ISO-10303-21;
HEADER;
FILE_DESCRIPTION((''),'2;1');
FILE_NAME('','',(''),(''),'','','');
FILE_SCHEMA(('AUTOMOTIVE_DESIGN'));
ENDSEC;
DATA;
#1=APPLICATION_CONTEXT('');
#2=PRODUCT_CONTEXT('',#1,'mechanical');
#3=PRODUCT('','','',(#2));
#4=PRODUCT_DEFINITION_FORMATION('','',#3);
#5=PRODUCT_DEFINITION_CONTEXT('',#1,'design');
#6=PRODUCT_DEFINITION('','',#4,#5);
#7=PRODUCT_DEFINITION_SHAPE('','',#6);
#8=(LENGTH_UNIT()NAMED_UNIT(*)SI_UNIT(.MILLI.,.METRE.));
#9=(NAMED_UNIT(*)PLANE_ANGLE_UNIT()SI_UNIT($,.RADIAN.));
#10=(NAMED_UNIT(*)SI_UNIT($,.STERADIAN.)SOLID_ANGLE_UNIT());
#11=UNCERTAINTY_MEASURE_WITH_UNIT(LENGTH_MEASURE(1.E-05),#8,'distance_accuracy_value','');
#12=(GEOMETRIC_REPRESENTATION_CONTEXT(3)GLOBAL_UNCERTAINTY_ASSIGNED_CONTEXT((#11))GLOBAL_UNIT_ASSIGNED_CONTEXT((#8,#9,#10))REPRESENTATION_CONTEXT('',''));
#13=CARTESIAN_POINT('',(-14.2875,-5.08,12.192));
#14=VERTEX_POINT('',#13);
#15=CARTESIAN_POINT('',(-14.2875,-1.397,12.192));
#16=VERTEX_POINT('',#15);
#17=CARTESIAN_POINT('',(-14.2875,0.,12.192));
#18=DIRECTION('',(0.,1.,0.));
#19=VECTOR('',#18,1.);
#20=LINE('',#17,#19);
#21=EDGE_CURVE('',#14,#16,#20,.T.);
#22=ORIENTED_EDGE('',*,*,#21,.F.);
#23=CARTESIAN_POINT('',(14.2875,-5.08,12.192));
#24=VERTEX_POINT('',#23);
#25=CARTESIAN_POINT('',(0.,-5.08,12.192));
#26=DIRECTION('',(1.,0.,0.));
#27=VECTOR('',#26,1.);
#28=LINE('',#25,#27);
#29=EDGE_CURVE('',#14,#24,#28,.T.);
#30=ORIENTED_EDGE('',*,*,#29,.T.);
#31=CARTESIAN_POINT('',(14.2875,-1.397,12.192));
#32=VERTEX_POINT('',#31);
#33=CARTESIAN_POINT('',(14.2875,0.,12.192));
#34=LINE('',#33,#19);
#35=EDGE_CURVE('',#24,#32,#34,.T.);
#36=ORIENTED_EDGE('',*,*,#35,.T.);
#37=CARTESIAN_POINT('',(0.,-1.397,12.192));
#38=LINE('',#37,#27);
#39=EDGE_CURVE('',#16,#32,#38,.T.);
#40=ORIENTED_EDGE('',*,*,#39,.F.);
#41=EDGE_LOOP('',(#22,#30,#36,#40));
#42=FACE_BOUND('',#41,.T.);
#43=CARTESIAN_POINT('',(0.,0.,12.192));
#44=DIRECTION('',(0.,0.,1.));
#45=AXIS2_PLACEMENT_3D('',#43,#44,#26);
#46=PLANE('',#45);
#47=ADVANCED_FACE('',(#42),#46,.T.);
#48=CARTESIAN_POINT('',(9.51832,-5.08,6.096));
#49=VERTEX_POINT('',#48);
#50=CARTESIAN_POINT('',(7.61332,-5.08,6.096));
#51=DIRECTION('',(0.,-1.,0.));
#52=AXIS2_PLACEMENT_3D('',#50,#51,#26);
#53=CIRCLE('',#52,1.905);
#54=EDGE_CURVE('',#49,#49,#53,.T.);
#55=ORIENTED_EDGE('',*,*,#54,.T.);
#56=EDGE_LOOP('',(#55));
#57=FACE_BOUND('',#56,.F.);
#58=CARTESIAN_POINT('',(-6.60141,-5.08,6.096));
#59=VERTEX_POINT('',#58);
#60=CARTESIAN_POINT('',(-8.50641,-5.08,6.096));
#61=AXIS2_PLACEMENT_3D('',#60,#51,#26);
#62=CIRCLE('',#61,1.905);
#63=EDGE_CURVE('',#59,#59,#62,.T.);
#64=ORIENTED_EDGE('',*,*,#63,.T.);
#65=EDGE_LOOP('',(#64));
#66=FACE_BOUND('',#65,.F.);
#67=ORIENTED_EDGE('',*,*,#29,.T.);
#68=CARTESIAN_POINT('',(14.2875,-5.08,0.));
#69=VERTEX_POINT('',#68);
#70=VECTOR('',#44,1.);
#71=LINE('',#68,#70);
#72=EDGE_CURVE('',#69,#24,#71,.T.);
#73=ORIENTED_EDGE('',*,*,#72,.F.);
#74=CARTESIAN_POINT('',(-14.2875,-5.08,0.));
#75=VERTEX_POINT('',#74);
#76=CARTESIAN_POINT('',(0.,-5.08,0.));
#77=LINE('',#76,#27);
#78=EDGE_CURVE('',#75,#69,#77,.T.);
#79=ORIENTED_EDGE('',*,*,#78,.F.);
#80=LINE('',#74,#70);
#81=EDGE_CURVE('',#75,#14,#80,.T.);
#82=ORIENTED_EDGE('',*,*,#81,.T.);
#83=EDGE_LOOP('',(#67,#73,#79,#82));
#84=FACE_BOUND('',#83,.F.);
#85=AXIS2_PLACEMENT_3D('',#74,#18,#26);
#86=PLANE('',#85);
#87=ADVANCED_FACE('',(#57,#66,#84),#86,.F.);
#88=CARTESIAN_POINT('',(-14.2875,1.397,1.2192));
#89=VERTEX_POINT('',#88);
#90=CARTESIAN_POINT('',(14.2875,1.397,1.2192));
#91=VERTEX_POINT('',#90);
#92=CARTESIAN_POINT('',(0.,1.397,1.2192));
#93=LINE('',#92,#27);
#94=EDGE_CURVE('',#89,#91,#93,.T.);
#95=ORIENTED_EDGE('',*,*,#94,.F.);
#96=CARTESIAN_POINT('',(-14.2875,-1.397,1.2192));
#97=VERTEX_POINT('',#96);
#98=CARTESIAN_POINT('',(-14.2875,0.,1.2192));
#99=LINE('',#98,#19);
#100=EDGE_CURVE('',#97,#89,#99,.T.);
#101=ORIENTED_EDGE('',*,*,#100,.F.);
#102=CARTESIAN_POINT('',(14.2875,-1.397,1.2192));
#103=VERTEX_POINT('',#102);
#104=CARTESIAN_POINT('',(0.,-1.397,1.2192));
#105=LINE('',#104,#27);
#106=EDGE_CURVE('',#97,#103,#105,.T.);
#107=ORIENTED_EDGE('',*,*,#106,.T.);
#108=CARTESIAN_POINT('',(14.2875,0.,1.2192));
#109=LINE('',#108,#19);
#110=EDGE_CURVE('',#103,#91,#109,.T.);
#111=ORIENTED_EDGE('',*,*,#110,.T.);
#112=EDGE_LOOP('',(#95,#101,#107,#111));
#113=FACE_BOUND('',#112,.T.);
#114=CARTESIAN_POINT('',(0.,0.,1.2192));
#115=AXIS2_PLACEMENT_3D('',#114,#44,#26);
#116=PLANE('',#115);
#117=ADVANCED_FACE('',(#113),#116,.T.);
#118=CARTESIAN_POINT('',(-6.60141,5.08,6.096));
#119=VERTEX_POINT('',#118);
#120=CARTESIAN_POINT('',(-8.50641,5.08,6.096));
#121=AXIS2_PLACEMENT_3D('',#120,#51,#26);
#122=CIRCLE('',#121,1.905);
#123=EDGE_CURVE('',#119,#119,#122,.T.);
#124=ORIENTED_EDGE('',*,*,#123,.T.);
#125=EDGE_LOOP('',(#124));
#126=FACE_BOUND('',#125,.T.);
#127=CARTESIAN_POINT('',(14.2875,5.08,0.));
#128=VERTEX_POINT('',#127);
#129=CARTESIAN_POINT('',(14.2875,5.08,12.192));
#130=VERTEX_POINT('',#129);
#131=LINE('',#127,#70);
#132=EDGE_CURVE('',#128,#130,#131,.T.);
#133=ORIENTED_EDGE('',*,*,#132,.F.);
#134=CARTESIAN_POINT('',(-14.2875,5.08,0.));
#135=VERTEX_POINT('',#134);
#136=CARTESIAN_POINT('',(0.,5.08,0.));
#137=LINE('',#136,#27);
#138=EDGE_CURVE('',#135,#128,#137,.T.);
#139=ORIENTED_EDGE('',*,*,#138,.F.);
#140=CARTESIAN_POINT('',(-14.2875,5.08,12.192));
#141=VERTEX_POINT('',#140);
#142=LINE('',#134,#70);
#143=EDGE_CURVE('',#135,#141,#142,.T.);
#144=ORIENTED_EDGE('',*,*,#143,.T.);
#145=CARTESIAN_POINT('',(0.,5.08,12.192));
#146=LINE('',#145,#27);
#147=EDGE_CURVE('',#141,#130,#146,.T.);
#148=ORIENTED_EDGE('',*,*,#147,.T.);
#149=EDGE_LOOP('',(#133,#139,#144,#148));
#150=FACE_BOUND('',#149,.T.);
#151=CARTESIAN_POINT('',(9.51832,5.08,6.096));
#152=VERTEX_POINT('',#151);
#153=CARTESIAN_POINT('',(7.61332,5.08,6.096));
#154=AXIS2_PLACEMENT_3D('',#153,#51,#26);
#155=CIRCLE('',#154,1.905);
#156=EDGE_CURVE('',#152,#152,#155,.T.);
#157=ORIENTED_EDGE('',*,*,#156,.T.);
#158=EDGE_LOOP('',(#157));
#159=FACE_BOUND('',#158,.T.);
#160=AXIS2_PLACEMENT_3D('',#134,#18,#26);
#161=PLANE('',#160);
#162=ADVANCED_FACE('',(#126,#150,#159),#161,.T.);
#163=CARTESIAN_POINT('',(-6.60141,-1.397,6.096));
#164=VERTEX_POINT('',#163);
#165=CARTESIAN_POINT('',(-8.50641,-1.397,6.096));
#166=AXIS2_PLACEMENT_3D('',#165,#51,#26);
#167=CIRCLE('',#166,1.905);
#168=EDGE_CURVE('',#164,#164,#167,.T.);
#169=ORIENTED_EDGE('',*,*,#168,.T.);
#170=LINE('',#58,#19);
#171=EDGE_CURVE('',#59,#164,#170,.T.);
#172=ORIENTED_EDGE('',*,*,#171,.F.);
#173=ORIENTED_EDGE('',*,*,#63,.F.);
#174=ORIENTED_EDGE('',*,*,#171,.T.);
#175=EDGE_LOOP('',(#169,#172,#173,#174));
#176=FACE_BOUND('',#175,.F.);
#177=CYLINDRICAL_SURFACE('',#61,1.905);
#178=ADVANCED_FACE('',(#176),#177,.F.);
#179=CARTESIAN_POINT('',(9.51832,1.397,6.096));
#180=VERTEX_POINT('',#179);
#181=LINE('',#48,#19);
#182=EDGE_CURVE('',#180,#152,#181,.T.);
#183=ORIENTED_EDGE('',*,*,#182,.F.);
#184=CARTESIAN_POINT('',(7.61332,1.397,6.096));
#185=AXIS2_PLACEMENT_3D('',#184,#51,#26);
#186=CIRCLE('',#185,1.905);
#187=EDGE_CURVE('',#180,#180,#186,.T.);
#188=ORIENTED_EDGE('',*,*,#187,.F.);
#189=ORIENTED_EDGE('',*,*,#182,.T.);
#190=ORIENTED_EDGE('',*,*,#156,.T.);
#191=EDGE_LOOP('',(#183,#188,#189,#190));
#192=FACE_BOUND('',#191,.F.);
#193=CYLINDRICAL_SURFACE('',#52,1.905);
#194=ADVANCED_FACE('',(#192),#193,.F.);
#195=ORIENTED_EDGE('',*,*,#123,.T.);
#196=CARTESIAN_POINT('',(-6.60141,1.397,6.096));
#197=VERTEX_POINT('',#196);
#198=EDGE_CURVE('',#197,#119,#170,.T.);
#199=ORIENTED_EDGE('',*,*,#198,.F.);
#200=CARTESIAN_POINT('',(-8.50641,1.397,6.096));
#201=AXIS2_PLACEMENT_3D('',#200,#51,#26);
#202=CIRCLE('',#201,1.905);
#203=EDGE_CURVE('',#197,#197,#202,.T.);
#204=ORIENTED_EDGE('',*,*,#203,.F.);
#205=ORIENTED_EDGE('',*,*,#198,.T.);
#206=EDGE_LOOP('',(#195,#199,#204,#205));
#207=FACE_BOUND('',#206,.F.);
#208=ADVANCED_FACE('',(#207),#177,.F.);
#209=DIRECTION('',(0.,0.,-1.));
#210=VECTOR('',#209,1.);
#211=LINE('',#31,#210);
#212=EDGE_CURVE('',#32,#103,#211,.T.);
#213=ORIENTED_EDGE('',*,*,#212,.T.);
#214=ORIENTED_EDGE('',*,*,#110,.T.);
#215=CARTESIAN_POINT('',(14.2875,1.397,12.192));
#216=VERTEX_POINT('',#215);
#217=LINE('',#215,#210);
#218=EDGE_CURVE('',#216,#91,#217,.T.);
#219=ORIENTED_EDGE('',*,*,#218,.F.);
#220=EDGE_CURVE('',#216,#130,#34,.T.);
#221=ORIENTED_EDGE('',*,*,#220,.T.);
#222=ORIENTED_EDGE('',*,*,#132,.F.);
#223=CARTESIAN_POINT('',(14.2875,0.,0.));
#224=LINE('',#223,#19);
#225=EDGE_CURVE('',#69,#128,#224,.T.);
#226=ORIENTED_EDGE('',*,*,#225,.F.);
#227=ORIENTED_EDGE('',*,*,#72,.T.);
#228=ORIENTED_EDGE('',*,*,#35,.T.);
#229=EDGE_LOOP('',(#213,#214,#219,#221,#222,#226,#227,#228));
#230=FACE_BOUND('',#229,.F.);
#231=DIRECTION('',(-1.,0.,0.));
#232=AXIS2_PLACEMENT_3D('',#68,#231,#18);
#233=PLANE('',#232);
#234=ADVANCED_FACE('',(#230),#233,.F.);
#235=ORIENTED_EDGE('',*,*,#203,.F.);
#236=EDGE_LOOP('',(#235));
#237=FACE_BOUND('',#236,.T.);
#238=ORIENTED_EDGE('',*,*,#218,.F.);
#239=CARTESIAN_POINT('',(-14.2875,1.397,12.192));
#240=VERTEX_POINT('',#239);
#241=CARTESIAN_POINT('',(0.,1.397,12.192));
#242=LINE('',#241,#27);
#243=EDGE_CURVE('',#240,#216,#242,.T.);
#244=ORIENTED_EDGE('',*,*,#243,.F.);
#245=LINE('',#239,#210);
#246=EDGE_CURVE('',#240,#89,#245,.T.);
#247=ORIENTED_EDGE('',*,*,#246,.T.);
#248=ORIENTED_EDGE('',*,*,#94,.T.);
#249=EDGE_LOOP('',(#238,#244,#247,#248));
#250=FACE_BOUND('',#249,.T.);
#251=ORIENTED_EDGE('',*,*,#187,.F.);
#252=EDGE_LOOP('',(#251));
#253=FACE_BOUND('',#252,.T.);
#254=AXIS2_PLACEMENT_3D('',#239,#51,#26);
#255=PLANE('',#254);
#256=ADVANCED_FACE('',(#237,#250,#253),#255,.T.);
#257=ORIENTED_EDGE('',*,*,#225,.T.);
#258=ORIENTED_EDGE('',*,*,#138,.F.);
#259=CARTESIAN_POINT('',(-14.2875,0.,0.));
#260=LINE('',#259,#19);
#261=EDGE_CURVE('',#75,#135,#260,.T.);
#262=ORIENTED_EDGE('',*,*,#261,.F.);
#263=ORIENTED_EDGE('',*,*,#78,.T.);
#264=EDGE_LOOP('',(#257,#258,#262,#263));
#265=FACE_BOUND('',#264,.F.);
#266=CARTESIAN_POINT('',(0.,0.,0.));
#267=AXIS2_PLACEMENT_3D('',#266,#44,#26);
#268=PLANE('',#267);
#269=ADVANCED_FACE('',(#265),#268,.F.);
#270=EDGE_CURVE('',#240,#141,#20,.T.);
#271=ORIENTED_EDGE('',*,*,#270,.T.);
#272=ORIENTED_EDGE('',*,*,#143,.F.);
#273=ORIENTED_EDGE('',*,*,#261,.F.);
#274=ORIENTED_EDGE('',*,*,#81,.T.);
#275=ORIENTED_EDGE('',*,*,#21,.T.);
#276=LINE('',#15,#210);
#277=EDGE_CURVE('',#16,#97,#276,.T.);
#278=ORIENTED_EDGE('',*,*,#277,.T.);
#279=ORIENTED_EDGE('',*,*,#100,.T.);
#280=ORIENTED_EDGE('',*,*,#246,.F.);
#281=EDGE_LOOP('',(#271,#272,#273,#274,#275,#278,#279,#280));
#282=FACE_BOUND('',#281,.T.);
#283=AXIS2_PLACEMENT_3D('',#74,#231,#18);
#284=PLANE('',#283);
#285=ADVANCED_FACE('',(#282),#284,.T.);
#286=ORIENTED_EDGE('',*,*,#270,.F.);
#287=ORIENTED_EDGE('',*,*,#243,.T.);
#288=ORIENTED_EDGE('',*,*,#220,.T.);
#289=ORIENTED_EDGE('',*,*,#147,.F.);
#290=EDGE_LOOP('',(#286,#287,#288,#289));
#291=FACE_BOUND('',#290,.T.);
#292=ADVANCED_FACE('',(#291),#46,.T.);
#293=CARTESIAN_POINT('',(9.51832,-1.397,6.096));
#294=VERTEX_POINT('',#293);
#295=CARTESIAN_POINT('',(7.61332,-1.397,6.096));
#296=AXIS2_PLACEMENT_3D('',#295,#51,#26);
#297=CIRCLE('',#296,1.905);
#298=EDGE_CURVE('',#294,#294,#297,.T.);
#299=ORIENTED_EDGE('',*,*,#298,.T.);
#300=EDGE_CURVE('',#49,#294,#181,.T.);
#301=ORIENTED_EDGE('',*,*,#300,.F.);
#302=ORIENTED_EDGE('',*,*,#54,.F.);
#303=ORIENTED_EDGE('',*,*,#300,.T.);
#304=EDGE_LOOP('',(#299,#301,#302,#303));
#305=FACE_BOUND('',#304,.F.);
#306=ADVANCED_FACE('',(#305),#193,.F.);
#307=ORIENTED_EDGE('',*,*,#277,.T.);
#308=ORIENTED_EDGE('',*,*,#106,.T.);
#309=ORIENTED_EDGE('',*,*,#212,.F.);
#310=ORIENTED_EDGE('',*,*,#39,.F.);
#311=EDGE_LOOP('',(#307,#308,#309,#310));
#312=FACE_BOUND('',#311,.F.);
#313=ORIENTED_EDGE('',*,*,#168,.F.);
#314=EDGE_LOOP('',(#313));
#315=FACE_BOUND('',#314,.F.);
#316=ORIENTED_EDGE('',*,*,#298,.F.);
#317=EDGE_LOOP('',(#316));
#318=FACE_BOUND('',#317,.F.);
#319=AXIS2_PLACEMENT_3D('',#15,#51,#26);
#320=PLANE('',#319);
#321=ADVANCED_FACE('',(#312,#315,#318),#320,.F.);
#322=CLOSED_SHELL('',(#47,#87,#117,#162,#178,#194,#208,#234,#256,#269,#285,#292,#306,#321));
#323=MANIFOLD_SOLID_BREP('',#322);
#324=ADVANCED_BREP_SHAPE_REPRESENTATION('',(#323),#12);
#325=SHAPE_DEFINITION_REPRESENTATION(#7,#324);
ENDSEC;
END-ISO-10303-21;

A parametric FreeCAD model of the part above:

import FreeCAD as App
import Part
import Sketcher

V = App.Vector
Q = App.Units.Quantity


def add_polygon(sketch, points):
    """Adds a closed chain of lines whose ends are joined by coincident constraints."""
    first, n = sketch.GeometryCount, len(points)
    for a, b in zip(points, points[1:] + points[:1]):
        sketch.addGeometry(Part.LineSegment(App.Vector(*a, 0), App.Vector(*b, 0)), False)
    for i in range(n):
        sketch.addConstraint(Sketcher.Constraint("Coincident", first + i, 2, first + (i + 1) % n, 1))

doc = App.newDocument("Part")
params = doc.addObject("Spreadsheet::Sheet", "Params")
for row, (alias, value) in enumerate([
    ("sketch1_height", "0.4 in"),
    ("sketch1_width", "1.125 in"),
    ("pad1_length", "0.48 in"),
    ("sketch2_height", "0.11 in"),
    ("sketch2_width", "1.125 in"),
    ("pocket1_length", "0.432 in"),
    ("sketch3_diameter", "0.15 in"),
    ("pocket2_length", "1 in"),
], start=1):
    params.set(f"A{row}", alias)
    params.set(f"B{row}", "=" + value)
    params.setAlias(f"B{row}", alias)

body = doc.addObject("PartDesign::Body", "Body")

sketch1 = body.newObject("Sketcher::SketchObject", "Sketch")
sketch1.AttachmentSupport = (doc.getObject("XY_Plane"), [""])
sketch1.MapMode = "FlatFace"
add_polygon(sketch1, [(-14, 5), (-14, -5), (14, -5), (14, 5)])
sketch1.addConstraint([
    Sketcher.Constraint("Vertical", 0),
    Sketcher.Constraint("Horizontal", 1),
    Sketcher.Constraint("Vertical", 2),
    Sketcher.Constraint("Horizontal", 3),
    Sketcher.Constraint("Symmetric", 0, 2, 2, 2, -1, 1),
    Sketcher.Constraint("DistanceY", 0, 2, 0, 1, Q("0.4 in")),
    Sketcher.Constraint("DistanceX", 1, 1, 1, 2, Q("1.125 in")),
])
sketch1.setExpression("Constraints[9]", "Params.sketch1_height")
sketch1.setExpression("Constraints[10]", "Params.sketch1_width")
pad1 = body.newObject("PartDesign::Pad", "Pad")
pad1.Profile = sketch1
pad1.setExpression("Length", "Params.pad1_length")

sketch2 = body.newObject("Sketcher::SketchObject", "Sketch001")
sketch2.AttachmentSupport = (doc.getObject("XY_Plane"), [""])
sketch2.MapMode = "FlatFace"
sketch2.AttachmentOffset = App.Placement(V(0, 0, 0.48 * 25.4), App.Rotation())
add_polygon(sketch2, [(-14.3, 1.4), (-14.3, -1.4), (14.3, -1.4), (14.3, 1.4)])
sketch2.addConstraint([
    Sketcher.Constraint("Vertical", 0),
    Sketcher.Constraint("Horizontal", 1),
    Sketcher.Constraint("Vertical", 2),
    Sketcher.Constraint("Horizontal", 3),
    Sketcher.Constraint("Symmetric", 0, 2, 2, 2, -1, 1),
    Sketcher.Constraint("DistanceY", 0, 2, 0, 1, Q("0.11 in")),
    Sketcher.Constraint("DistanceX", 1, 1, 1, 2, Q("1.125 in")),
])
sketch2.setExpression("Constraints[9]", "Params.sketch2_height")
sketch2.setExpression("Constraints[10]", "Params.sketch2_width")
pocket1 = body.newObject("PartDesign::Pocket", "Pocket")
pocket1.Profile = sketch2
pocket1.setExpression("Length", "Params.pocket1_length")

sketch3 = body.newObject("Sketcher::SketchObject", "Sketch002")
sketch3.AttachmentSupport = (doc.getObject("XZ_Plane"), [""])
sketch3.MapMode = "FlatFace"
sketch3.AttachmentOffset = App.Placement(V(0, 0, 0.2 * 25.4), App.Rotation())
sketch3.addGeometry([
    Part.Circle(V(-8.5, 6.1, 0), V(0, 0, 1), 1.9),
    Part.Circle(V(7.6, 6.1, 0), V(0, 0, 1), 1.9),
], False)
sketch3.addConstraint([
    Sketcher.Constraint("Equal", 0, 1),
    Sketcher.Constraint("Horizontal", 0, 3, 1, 3),
    Sketcher.Constraint("Diameter", 0, Q("0.15 in")),
    Sketcher.Constraint("DistanceY", -1, 1, 0, 3, Q("0.24 in")),
    Sketcher.Constraint("DistanceX", 0, 3, -1, 1, Q("8.50641 mm")),
    Sketcher.Constraint("DistanceX", -1, 1, 1, 3, Q("7.61332 mm")),
])
sketch3.setExpression("Constraints[2]", "Params.sketch3_diameter")
pocket2 = body.newObject("PartDesign::Pocket", "Pocket001")
pocket2.Profile = sketch3
pocket2.setExpression("Length", "Params.pocket2_length")

doc.recompute()
